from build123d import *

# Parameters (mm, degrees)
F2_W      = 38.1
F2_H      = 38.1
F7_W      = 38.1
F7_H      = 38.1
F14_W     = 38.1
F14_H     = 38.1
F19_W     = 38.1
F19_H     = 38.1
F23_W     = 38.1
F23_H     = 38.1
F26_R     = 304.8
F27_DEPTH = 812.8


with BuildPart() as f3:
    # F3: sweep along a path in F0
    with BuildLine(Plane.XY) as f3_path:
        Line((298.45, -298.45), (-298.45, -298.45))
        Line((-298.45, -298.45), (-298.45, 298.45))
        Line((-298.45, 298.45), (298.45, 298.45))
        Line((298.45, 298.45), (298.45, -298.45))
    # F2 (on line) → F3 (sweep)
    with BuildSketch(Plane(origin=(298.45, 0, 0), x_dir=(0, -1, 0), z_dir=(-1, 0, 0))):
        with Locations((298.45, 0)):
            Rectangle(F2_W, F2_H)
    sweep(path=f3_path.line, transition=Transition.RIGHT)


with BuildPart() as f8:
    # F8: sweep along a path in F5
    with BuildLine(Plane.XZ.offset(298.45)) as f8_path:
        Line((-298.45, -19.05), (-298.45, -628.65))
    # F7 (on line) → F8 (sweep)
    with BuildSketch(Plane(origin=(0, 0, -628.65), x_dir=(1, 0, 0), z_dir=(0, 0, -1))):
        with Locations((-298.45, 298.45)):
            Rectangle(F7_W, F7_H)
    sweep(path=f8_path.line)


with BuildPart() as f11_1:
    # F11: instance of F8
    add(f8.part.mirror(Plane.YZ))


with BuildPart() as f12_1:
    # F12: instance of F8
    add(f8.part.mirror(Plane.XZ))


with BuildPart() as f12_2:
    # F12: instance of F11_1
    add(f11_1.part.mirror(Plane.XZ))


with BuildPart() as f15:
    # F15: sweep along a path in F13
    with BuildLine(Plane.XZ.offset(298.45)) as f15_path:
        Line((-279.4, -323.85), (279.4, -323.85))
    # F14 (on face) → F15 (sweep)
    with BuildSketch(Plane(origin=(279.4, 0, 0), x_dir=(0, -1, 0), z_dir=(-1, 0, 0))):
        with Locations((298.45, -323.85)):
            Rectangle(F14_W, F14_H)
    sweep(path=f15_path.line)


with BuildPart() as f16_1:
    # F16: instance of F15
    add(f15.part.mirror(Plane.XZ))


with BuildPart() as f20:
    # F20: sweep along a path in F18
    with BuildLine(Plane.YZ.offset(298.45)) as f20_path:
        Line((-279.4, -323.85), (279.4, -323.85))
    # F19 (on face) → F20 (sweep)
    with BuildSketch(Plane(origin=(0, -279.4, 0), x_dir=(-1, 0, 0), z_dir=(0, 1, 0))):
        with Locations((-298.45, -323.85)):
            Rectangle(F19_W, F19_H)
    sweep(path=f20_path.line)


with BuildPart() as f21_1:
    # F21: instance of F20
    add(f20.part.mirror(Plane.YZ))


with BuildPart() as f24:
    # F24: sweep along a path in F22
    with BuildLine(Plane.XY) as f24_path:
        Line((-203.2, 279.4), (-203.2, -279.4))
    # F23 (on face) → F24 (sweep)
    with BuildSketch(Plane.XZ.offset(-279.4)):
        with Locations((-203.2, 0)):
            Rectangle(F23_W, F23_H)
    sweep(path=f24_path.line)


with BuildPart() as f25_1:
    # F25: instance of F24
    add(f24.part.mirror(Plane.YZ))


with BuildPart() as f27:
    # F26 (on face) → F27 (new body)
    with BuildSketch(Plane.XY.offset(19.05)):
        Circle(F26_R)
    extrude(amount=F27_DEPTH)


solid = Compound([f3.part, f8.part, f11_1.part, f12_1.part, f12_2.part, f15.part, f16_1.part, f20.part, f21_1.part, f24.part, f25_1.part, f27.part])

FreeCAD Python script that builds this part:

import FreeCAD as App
import Part
import Sketcher
from FreeCAD import Vector
Q = App.Units.Quantity


def add_polygon(sketch, points):
    """Adds a closed chain of lines whose ends are joined by coincident constraints."""
    first, n = sketch.GeometryCount, len(points)
    for a, b in zip(points, points[1:] + points[:1]):
        sketch.addGeometry(Part.LineSegment(App.Vector(*a, 0), App.Vector(*b, 0)), False)
    for i in range(n):
        sketch.addConstraint(Sketcher.Constraint("Coincident", first + i, 2, first + (i + 1) % n, 1))

doc = App.newDocument("Part")
params = doc.addObject("Spreadsheet::Sheet", "Params")
for row, (alias, value) in enumerate([
    ("sketch1_width", "1.5 in"),
    ("sketch2_width", "23.5 in"),
    ("sketch3_width", "1.5 in"),
    ("sketch4_height", "24 in"),
    ("sketch5_width", "1.5 in"),
    ("sketch6_width", "22 in"),
    ("sketch7_width", "1.5 in"),
    ("sketch8_height", "22 in"),
    ("sketch9_width", "1.5 in"),
    ("sketch10_height", "22 in"),
    ("sketch11_diameter", "24 in"),
    ("pad1_length", "32 in"),
], start=1):
    params.set(f"A{row}", alias)
    params.set(f"B{row}", "=" + value)
    params.setAlias(f"B{row}", alias)

body = doc.addObject("PartDesign::Body", "Body")

# Sketch on YZ plane
sketch1 = body.newObject("Sketcher::SketchObject", "Sketch")
sketch1.AttachmentSupport = (doc.getObject("YZ_Plane"), [""])
sketch1.MapMode = "FlatFace"
sketch1.AttachmentOffset = App.Placement(Vector(0, 0, 11.75 * 25.4), App.Rotation())
add_polygon(sketch1, [(-279, 19), (-279, -19), (-318, -19), (-318, 19)])  # lines 0-3
sketch1.addConstraint([
    Sketcher.Constraint("Vertical", 0),
    Sketcher.Constraint("Horizontal", 1),
    Sketcher.Constraint("Vertical", 2),
    Sketcher.Constraint("Horizontal", 3),
    Sketcher.Constraint("Equal", 3, 0),
    Sketcher.Constraint("DistanceX", 1, 2, 1, 1, Q("1.5 in")),
    Sketcher.Constraint("DistanceX", 0, 2, -1, 1, Q("11 in")),
    Sketcher.Constraint("DistanceY", 0, 2, -1, 1, Q("0.75 in")),
])
sketch1.setExpression("Constraints[9]", "Params.sketch1_width")

# Sketch on XY plane
sketch2 = body.newObject("Sketcher::SketchObject", "Sketch001")
sketch2.AttachmentSupport = (doc.getObject("XY_Plane"), [""])
sketch2.MapMode = "FlatFace"
add_polygon(sketch2, [(298, -298), (-298, -298), (-298, 298), (298, 298)])  # lines 0-3
sketch2.addConstraint([
    Sketcher.Constraint("Horizontal", 0),
    Sketcher.Constraint("Vertical", 1),
    Sketcher.Constraint("Horizontal", 2),
    Sketcher.Constraint("Vertical", 3),
    Sketcher.Constraint("Symmetric", 0, 2, 2, 2, -1, 1),
    Sketcher.Constraint("Equal", 2, 1),
    Sketcher.Constraint("DistanceX", 0, 2, 0, 1, Q("23.5 in")),
])
sketch2.setExpression("Constraints[10]", "Params.sketch2_width")
doc.recompute()

additivepipe = body.newObject("PartDesign::AdditivePipe", "AdditivePipe")
additivepipe.Profile = sketch1
additivepipe.Spine = (sketch2, ["Edge1", "Edge2", "Edge3", "Edge4"])
additivepipe.Transition = "Right corner"
body2 = doc.addObject("PartDesign::Body", "Body001")

# Sketch on XY plane
sketch3 = body2.newObject("Sketcher::SketchObject", "Sketch002")
sketch3.AttachmentSupport = (doc.getObject("XY_Plane001"), [""])
sketch3.MapMode = "FlatFace"
sketch3.AttachmentOffset = App.Placement(Vector(0, 0, -24.75 * 25.4), App.Rotation())
add_polygon(sketch3, [(-318, -318), (-318, -279), (-279, -279), (-279, -318)])  # lines 0-3
sketch3.addConstraint([
    Sketcher.Constraint("Vertical", 0),
    Sketcher.Constraint("Horizontal", 1),
    Sketcher.Constraint("Vertical", 2),
    Sketcher.Constraint("Horizontal", 3),
    Sketcher.Constraint("Equal", 3, 0),
    Sketcher.Constraint("DistanceX", 1, 1, 1, 2, Q("1.5 in")),
    Sketcher.Constraint("DistanceY", 0, 2, -1, 1, Q("11 in")),
    Sketcher.Constraint("DistanceX", 1, 2, -1, 1, Q("11 in")),
])
sketch3.setExpression("Constraints[9]", "Params.sketch3_width")

# Sketch on XZ plane
sketch4 = body2.newObject("Sketcher::SketchObject", "Sketch003")
sketch4.AttachmentSupport = (doc.getObject("XZ_Plane001"), [""])
sketch4.MapMode = "FlatFace"
sketch4.AttachmentOffset = App.Placement(Vector(0, 0, 11.75 * 25.4), App.Rotation())
sketch4.addGeometry(Part.LineSegment(Vector(-298, -19, 0), Vector(-298, -629, 0)), False)
sketch4.addConstraint([
    Sketcher.Constraint("Vertical", 0),
    Sketcher.Constraint("DistanceY", 0, 2, 0, 1, Q("24 in")),
    Sketcher.Constraint("DistanceX", 0, 1, -1, 1, Q("11.75 in")),
    Sketcher.Constraint("DistanceY", 0, 1, -1, 1, Q("0.75 in")),
])
sketch4.setExpression("Constraints[1]", "Params.sketch4_height")
doc.recompute()

additivepipe2 = body2.newObject("PartDesign::AdditivePipe", "AdditivePipe001")
additivepipe2.Profile = sketch3
additivepipe2.Spine = (sketch4, ["Edge1"])
body3 = doc.addObject("PartDesign::Body", "Body002")
doc.recompute()

mirroring = doc.addObject("Part::Mirroring", "Mirroring")
mirroring.Source = body2
mirroring.Base = Vector(0, 0, 0)
mirroring.Normal = Vector(1, 0, 0)
body3.BaseFeature = mirroring
doc.recompute()
body4 = doc.addObject("PartDesign::Body", "Body003")
doc.recompute()

mirroring2 = doc.addObject("Part::Mirroring", "Mirroring001")
mirroring2.Source = body2
mirroring2.Base = Vector(0, 0, 0)
mirroring2.Normal = Vector(0, -1, 0)
body4.BaseFeature = mirroring2
doc.recompute()
body5 = doc.addObject("PartDesign::Body", "Body004")
doc.recompute()

mirroring3 = doc.addObject("Part::Mirroring", "Mirroring002")
mirroring3.Source = body3
mirroring3.Base = Vector(0, 0, 0)
mirroring3.Normal = Vector(0, -1, 0)
body5.BaseFeature = mirroring3
doc.recompute()
body6 = doc.addObject("PartDesign::Body", "Body005")

# Sketch on YZ plane
sketch5 = body6.newObject("Sketcher::SketchObject", "Sketch004")
sketch5.AttachmentSupport = (doc.getObject("YZ_Plane005"), [""])
sketch5.MapMode = "FlatFace"
sketch5.AttachmentOffset = App.Placement(Vector(0, 0, 11 * 25.4), App.Rotation())
add_polygon(sketch5, [(-279, -305), (-279, -343), (-318, -343), (-318, -305)])  # lines 0-3
sketch5.addConstraint([
    Sketcher.Constraint("Vertical", 0),
    Sketcher.Constraint("Horizontal", 1),
    Sketcher.Constraint("Vertical", 2),
    Sketcher.Constraint("Horizontal", 3),
    Sketcher.Constraint("Equal", 3, 0),
    Sketcher.Constraint("DistanceX", 1, 2, 1, 1, Q("1.5 in")),
    Sketcher.Constraint("DistanceX", 0, 2, -1, 1, Q("11 in")),
    Sketcher.Constraint("DistanceY", 2, 2, -1, 1, Q("12 in")),
])
sketch5.setExpression("Constraints[9]", "Params.sketch5_width")

# Sketch on XY plane
sketch6 = body6.newObject("Sketcher::SketchObject", "Sketch005")
sketch6.AttachmentSupport = (doc.getObject("XY_Plane005"), [""])
sketch6.MapMode = "FlatFace"
sketch6.AttachmentOffset = App.Placement(Vector(0, 0, -12.75 * 25.4), App.Rotation())
sketch6.addGeometry(Part.LineSegment(Vector(-279, -298, 0), Vector(279, -298, 0)), False)
sketch6.addConstraint([
    Sketcher.Constraint("Horizontal", 0),
    Sketcher.Constraint("DistanceX", 0, 1, 0, 2, Q("22 in")),
    Sketcher.Constraint("DistanceX", 0, 1, -1, 1, Q("11 in")),
    Sketcher.Constraint("DistanceY", 0, 1, -1, 1, Q("11.75 in")),
])
sketch6.setExpression("Constraints[1]", "Params.sketch6_width")
doc.recompute()

additivepipe3 = body6.newObject("PartDesign::AdditivePipe", "AdditivePipe002")
additivepipe3.Profile = sketch5
additivepipe3.Spine = (sketch6, ["Edge1"])
body7 = doc.addObject("PartDesign::Body", "Body006")
doc.recompute()

mirroring4 = doc.addObject("Part::Mirroring", "Mirroring003")
mirroring4.Source = body6
mirroring4.Base = Vector(0, 0, 0)
mirroring4.Normal = Vector(0, -1, 0)
body7.BaseFeature = mirroring4
doc.recompute()
body8 = doc.addObject("PartDesign::Body", "Body007")

# Sketch on XZ plane
sketch7 = body8.newObject("Sketcher::SketchObject", "Sketch006")
sketch7.AttachmentSupport = (doc.getObject("XZ_Plane007"), [""])
sketch7.MapMode = "FlatFace"
sketch7.AttachmentOffset = App.Placement(Vector(0, 0, 11 * 25.4), App.Rotation())
add_polygon(sketch7, [(318, -305), (318, -343), (279, -343), (279, -305)])  # lines 0-3
sketch7.addConstraint([
    Sketcher.Constraint("Vertical", 0),
    Sketcher.Constraint("Horizontal", 1),
    Sketcher.Constraint("Vertical", 2),
    Sketcher.Constraint("Horizontal", 3),
    Sketcher.Constraint("Equal", 3, 0),
    Sketcher.Constraint("DistanceX", 1, 2, 1, 1, Q("1.5 in")),
    Sketcher.Constraint("DistanceX", -1, 1, 1, 2, Q("11 in")),
    Sketcher.Constraint("DistanceY", 2, 2, -1, 1, Q("12 in")),
])
sketch7.setExpression("Constraints[9]", "Params.sketch7_width")

# Sketch on XY plane
sketch8 = body8.newObject("Sketcher::SketchObject", "Sketch007")
sketch8.AttachmentSupport = (doc.getObject("XY_Plane007"), [""])
sketch8.MapMode = "FlatFace"
sketch8.AttachmentOffset = App.Placement(Vector(0, 0, -12.75 * 25.4), App.Rotation())
sketch8.addGeometry(Part.LineSegment(Vector(298, -279, 0), Vector(298, 279, 0)), False)
sketch8.addConstraint([
    Sketcher.Constraint("Vertical", 0),
    Sketcher.Constraint("DistanceY", 0, 1, 0, 2, Q("22 in")),
    Sketcher.Constraint("DistanceY", 0, 1, -1, 1, Q("11 in")),
    Sketcher.Constraint("DistanceX", -1, 1, 0, 1, Q("11.75 in")),
])
sketch8.setExpression("Constraints[1]", "Params.sketch8_height")
doc.recompute()

additivepipe4 = body8.newObject("PartDesign::AdditivePipe", "AdditivePipe003")
additivepipe4.Profile = sketch7
additivepipe4.Spine = (sketch8, ["Edge1"])
body9 = doc.addObject("PartDesign::Body", "Body008")
doc.recompute()

mirroring5 = doc.addObject("Part::Mirroring", "Mirroring004")
mirroring5.Source = body8
mirroring5.Base = Vector(0, 0, 0)
mirroring5.Normal = Vector(1, 0, 0)
body9.BaseFeature = mirroring5
doc.recompute()
body10 = doc.addObject("PartDesign::Body", "Body009")

# Sketch on XZ plane
sketch9 = body10.newObject("Sketcher::SketchObject", "Sketch008")
sketch9.AttachmentSupport = (doc.getObject("XZ_Plane009"), [""])
sketch9.MapMode = "FlatFace"
sketch9.AttachmentOffset = App.Placement(Vector(0, 0, -11 * 25.4), App.Rotation())
add_polygon(sketch9, [(-222, 19), (-222, -19), (-184, -19), (-184, 19)])  # lines 0-3
sketch9.addConstraint([
    Sketcher.Constraint("Vertical", 0),
    Sketcher.Constraint("Horizontal", 1),
    Sketcher.Constraint("Vertical", 2),
    Sketcher.Constraint("Horizontal", 3),
    Sketcher.Constraint("Equal", 3, 0),
    Sketcher.Constraint("DistanceX", 1, 1, 1, 2, Q("1.5 in")),
    Sketcher.Constraint("DistanceX", 0, 2, -1, 1, Q("8.75 in")),
    Sketcher.Constraint("DistanceY", 0, 2, -1, 1, Q("0.75 in")),
])
sketch9.setExpression("Constraints[9]", "Params.sketch9_width")

# Sketch on XY plane
sketch10 = body10.newObject("Sketcher::SketchObject", "Sketch009")
sketch10.AttachmentSupport = (doc.getObject("XY_Plane009"), [""])
sketch10.MapMode = "FlatFace"
sketch10.addGeometry(Part.LineSegment(Vector(-203, 279, 0), Vector(-203, -279, 0)), False)
sketch10.addConstraint([
    Sketcher.Constraint("Vertical", 0),
    Sketcher.Constraint("DistanceY", 0, 2, 0, 1, Q("22 in")),
    Sketcher.Constraint("DistanceX", 0, 1, -1, 1, Q("8 in")),
    Sketcher.Constraint("DistanceY", -1, 1, 0, 1, Q("11 in")),
])
sketch10.setExpression("Constraints[1]", "Params.sketch10_height")
doc.recompute()

additivepipe5 = body10.newObject("PartDesign::AdditivePipe", "AdditivePipe004")
additivepipe5.Profile = sketch9
additivepipe5.Spine = (sketch10, ["Edge1"])
body11 = doc.addObject("PartDesign::Body", "Body010")
doc.recompute()

mirroring6 = doc.addObject("Part::Mirroring", "Mirroring005")
mirroring6.Source = body10
mirroring6.Base = Vector(0, 0, 0)
mirroring6.Normal = Vector(1, 0, 0)
body11.BaseFeature = mirroring6
doc.recompute()
body12 = doc.addObject("PartDesign::Body", "Body011")

# Sketch on XY plane
sketch11 = body12.newObject("Sketcher::SketchObject", "Sketch010")
sketch11.AttachmentSupport = (doc.getObject("XY_Plane011"), [""])
sketch11.MapMode = "FlatFace"
sketch11.AttachmentOffset = App.Placement(Vector(0, 0, 0.75 * 25.4), App.Rotation())
sketch11.addGeometry(Part.Circle(Vector(0, 0, 0), Vector(0, 0, 1), 305), False)
sketch11.addConstraint([
    Sketcher.Constraint("Coincident", 0, 3, -1, 1),
    Sketcher.Constraint("Diameter", 0, Q("24 in")),
])
sketch11.setExpression("Constraints[1]", "Params.sketch11_diameter")
pad1 = body12.newObject("PartDesign::Pad", "Pad")
pad1.Profile = sketch11
pad1.setExpression("Length", "Params.pad1_length")
mirroring.Visibility = False
mirroring2.Visibility = False
mirroring3.Visibility = False
mirroring4.Visibility = False
mirroring5.Visibility = False
mirroring6.Visibility = False

doc.recompute()
